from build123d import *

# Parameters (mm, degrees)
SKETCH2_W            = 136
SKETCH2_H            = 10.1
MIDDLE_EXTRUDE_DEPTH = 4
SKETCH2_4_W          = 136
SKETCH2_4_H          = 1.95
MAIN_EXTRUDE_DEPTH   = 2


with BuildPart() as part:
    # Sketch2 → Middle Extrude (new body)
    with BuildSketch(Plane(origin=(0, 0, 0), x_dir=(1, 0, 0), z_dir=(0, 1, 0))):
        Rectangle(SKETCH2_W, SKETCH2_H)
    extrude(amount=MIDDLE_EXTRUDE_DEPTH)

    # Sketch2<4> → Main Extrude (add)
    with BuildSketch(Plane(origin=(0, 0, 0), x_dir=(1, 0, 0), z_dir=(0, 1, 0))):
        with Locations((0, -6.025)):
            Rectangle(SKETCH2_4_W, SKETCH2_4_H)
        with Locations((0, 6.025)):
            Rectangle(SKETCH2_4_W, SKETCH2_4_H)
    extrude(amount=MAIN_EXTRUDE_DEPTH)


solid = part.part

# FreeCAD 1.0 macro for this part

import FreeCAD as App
import Part
import Sketcher

V = App.Vector
Q = App.Units.Quantity


def add_polygon(sketch, points):
    """Adds a closed chain of lines whose ends are joined by coincident constraints."""
    first, n = sketch.GeometryCount, len(points)
    for a, b in zip(points, points[1:] + points[:1]):
        sketch.addGeometry(Part.LineSegment(App.Vector(*a, 0), App.Vector(*b, 0)), False)
    for i in range(n):
        sketch.addConstraint(Sketcher.Constraint("Coincident", first + i, 2, first + (i + 1) % n, 1))

doc = App.newDocument("Part")
body = doc.addObject("PartDesign::Body", "Body")

# Sketch on XZ plane
sketch1 = body.newObject("Sketcher::SketchObject", "Sketch")
sketch1.AttachmentSupport = (doc.getObject("XZ_Plane"), [""])
sketch1.MapMode = "FlatFace"
add_polygon(sketch1, [(-68, -5), (-68, 5), (68, 5), (68, -5)])  # lines 0-3
sketch1.addConstraint([
    Sketcher.Constraint("Vertical", 0),
    Sketcher.Constraint("Horizontal", 1),
    Sketcher.Constraint("Vertical", 2),
    Sketcher.Constraint("Horizontal", 3),
    Sketcher.Constraint("Symmetric", 0, 2, 2, 2, -1, 1),
    Sketcher.Constraint("DistanceX", 1, 1, 1, 2, Q("136 mm")),
    Sketcher.Constraint("DistanceY", 0, 1, 0, 2, Q("10.1 mm")),
])
pad1 = body.newObject("PartDesign::Pad", "Pad")
pad1.Profile = sketch1
pad1.Length = 4
pad1.Reversed = True

# Sketch on XZ plane
sketch2 = body.newObject("Sketcher::SketchObject", "Sketch001")
sketch2.AttachmentSupport = (doc.getObject("XZ_Plane"), [""])
sketch2.MapMode = "FlatFace"
add_polygon(sketch2, [(-68, 5), (-68, 7), (68, 7), (68, 5)])  # lines 0-3
add_polygon(sketch2, [(-68, -7), (-68, -5), (68, -5), (68, -7)])  # lines 4-7
sketch2.addConstraint([
    Sketcher.Constraint("Vertical", 0),
    Sketcher.Constraint("Horizontal", 1),
    Sketcher.Constraint("Vertical", 2),
    Sketcher.Constraint("Horizontal", 3),
    Sketcher.Constraint("Vertical", 4),
    Sketcher.Constraint("Horizontal", 5),
    Sketcher.Constraint("Vertical", 6),
    Sketcher.Constraint("Horizontal", 7),
    Sketcher.Constraint("Symmetric", 2, 2, 4, 2, -1, 1),
    Sketcher.Constraint("Symmetric", 0, 2, 6, 2, -1, 1),
    Sketcher.Constraint("Vertical", 3, 2, 4, 2),
    Sketcher.Constraint("DistanceX", 1, 1, 1, 2, Q("136 mm")),
    Sketcher.Constraint("DistanceY", -1, 1, 0, 2, Q("7 mm")),
    Sketcher.Constraint("DistanceY", 0, 1, 0, 2, Q("1.95 mm")),
])
pad2 = body.newObject("PartDesign::Pad", "Pad001")
pad2.Profile = sketch2
pad2.Length = 2
pad2.Reversed = True

doc.recompute()
